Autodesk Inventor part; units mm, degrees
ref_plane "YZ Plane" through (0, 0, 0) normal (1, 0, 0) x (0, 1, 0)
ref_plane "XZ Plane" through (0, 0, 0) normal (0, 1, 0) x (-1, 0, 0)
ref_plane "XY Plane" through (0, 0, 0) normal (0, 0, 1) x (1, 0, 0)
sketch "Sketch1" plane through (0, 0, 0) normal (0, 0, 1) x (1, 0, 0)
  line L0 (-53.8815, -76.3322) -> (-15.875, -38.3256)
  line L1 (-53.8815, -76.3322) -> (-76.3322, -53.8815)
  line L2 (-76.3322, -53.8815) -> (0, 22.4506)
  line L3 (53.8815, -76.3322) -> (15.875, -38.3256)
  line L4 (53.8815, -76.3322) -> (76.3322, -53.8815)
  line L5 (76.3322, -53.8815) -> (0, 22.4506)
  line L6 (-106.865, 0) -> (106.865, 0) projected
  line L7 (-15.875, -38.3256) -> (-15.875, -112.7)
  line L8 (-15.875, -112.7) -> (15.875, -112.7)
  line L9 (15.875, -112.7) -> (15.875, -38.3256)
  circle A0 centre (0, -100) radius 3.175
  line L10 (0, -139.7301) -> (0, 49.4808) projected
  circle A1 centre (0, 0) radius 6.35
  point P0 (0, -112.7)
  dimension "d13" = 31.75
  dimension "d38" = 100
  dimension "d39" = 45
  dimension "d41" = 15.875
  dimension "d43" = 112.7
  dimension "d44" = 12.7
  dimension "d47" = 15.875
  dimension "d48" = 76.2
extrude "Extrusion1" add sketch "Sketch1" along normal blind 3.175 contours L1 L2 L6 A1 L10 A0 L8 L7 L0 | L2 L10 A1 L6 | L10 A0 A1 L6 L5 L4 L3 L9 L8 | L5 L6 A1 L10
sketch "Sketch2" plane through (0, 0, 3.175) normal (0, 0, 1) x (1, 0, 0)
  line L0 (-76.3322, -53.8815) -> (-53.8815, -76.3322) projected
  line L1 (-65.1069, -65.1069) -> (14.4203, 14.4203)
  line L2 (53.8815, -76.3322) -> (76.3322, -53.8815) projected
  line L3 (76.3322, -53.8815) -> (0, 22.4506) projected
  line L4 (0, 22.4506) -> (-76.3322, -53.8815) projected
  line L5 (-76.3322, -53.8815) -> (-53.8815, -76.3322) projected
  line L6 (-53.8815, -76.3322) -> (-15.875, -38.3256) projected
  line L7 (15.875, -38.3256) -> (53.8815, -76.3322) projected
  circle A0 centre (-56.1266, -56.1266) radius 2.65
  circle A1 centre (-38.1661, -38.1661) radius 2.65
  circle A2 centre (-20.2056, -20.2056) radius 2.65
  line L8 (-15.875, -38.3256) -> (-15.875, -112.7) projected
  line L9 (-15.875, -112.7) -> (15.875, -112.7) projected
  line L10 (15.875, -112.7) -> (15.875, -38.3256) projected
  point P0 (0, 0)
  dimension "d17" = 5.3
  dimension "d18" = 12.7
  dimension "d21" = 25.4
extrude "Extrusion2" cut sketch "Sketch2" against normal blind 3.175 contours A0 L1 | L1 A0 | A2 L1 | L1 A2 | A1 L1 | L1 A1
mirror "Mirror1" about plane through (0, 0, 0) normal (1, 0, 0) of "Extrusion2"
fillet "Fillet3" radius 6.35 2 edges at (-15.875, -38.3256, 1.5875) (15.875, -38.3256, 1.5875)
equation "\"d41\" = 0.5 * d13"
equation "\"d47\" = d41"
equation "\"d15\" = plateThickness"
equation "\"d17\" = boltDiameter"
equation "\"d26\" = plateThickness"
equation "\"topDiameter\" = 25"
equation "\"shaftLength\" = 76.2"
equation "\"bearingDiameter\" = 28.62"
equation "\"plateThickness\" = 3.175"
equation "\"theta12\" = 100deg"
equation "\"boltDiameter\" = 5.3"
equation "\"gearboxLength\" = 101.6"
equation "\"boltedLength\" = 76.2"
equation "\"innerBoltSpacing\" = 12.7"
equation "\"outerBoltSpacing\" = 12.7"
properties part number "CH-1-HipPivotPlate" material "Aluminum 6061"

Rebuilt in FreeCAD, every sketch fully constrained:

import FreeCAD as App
import Part
import Sketcher

V = App.Vector
Q = App.Units.Quantity


def edges_at(feature, points):
    """Names of the edges that pass closest to the given points."""
    edges = feature.Shape.Edges
    near = lambda p: min(range(len(edges)), key=lambda i: edges[i].distToShape(Part.Vertex(*p))[0])
    return sorted({f"Edge{near(p) + 1}" for p in points})


def add_polygon(sketch, points):
    """Adds a closed chain of lines whose ends are joined by coincident constraints."""
    first, n = sketch.GeometryCount, len(points)
    for a, b in zip(points, points[1:] + points[:1]):
        sketch.addGeometry(Part.LineSegment(App.Vector(*a, 0), App.Vector(*b, 0)), False)
    for i in range(n):
        sketch.addConstraint(Sketcher.Constraint("Coincident", first + i, 2, first + (i + 1) % n, 1))

doc = App.newDocument("Part")
body = doc.addObject("PartDesign::Body", "Body")

# Sketch on XY plane
sketch1 = body.newObject("Sketcher::SketchObject", "Sketch")
sketch1.AttachmentSupport = (doc.getObject("XY_Plane"), [""])
sketch1.MapMode = "FlatFace"
add_polygon(sketch1, [(-76.3322, -53.8815), (-53.8815, -76.3322), (-15.875, -38.3256), (-15.875, -112.7), (15.875, -112.7), (15.875, -38.3256), (53.8815, -76.3322), (76.3322, -53.8815), (0, 22.4506)])  # lines 0-8
sketch1.addGeometry(Part.Circle(V(0, 0, 0), V(0, 0, 1), 6.35), False)  # 9
sketch1.addGeometry(Part.Circle(V(0, -100, 0), V(0, 0, 1), 3.175), False)  # 10
sketch1.addConstraint([
    Sketcher.Constraint("Vertical", 2),
    Sketcher.Constraint("Horizontal", 3),
    Sketcher.Constraint("Vertical", 4),
    Sketcher.Constraint("Coincident", 9, 3, -1, 1),
    Sketcher.Constraint("Symmetric", 1, 2, 4, 2, -2),
    Sketcher.Constraint("Symmetric", 0, 2, 5, 2, -2),
    Sketcher.Constraint("Symmetric", 6, 2, 8, 2, -2),
    Sketcher.Constraint("PointOnObject", 10, 3, -2),
    Sketcher.Constraint("PointOnObject", 7, 2, -2),
    Sketcher.Constraint("Perpendicular", 0, 1),
    Sketcher.Constraint("Perpendicular", 1, 5),
    Sketcher.Constraint("Perpendicular", 6, 7),
    Sketcher.Constraint("Diameter", 9, Q("0.5 in")),
    Sketcher.Constraint("DistanceX", 3, 1, 3, 2, Q("1.25 in")),
    Sketcher.Constraint("DistanceY", 2, 2, 10, 3, Q("0.5 in")),
    Sketcher.Constraint("Distance", 0, Q("1.25 in")),
    Sketcher.Constraint("Diameter", 10, Q("0.25 in")),
    Sketcher.Constraint("DistanceY", 10, 3, -1, 1, Q("3.937 in")),
    Sketcher.Constraint("Distance", 7, Q("4.25 in")),
    Sketcher.Constraint("DistanceY", 2, 2, 2, 1, 74.3744),
])
pad1 = body.newObject("PartDesign::Pad", "Pad")
pad1.Profile = sketch1
pad1.Length = Q("0.125 in")

# Sketch on XY plane
sketch2 = body.newObject("Sketcher::SketchObject", "Sketch001")
sketch2.AttachmentSupport = (doc.getObject("XY_Plane"), [""])
sketch2.MapMode = "FlatFace"
sketch2.AttachmentOffset = App.Placement(V(0, 0, 0.125 * 25.4), App.Rotation())
sketch2.addGeometry([
    Part.Circle(V(-56.1266, -56.1266, 0), V(0, 0, 1), 2.65),
    Part.Circle(V(-20.2056, -20.2056, 0), V(0, 0, 1), 2.65),
    Part.Circle(V(-38.1661, -38.1661, 0), V(0, 0, 1), 2.65),
], False)
sketch2.addConstraint([
    Sketcher.Constraint("Equal", 0, 1),
    Sketcher.Constraint("Equal", 1, 2),
    Sketcher.Constraint("Diameter", 0, 5.3),
    Sketcher.Constraint("DistanceX", 0, 3, -1, 1, Q("2.2097 in")),
    Sketcher.Constraint("DistanceY", 0, 3, -1, 1, Q("2.2097 in")),
    Sketcher.Constraint("DistanceX", 1, 3, -1, 1, Q("0.7955 in")),
    Sketcher.Constraint("DistanceY", 1, 3, -1, 1, Q("0.7955 in")),
    Sketcher.Constraint("DistanceX", 2, 3, -1, 1, Q("1.5026 in")),
    Sketcher.Constraint("DistanceY", 2, 3, -1, 1, Q("1.5026 in")),
])
pocket1 = body.newObject("PartDesign::Pocket", "Pocket")
pocket1.Profile = sketch2
pocket1.Length = Q("0.125 in")
doc.recompute()

mirrored = body.newObject("PartDesign::Mirrored", "Mirrored")
mirrored.Originals = [pocket1]
mirrored.MirrorPlane = (doc.getObject("YZ_Plane"), [""])
body.Tip = mirrored
doc.recompute()

fillet = body.newObject("PartDesign::Fillet", "Fillet")
fillet.Base = (mirrored, edges_at(mirrored, [(-15.875, -38.326, 1.587), (15.875, -38.326, 1.587)]))
fillet.Radius = Q("0.25 in")

doc.recompute()
